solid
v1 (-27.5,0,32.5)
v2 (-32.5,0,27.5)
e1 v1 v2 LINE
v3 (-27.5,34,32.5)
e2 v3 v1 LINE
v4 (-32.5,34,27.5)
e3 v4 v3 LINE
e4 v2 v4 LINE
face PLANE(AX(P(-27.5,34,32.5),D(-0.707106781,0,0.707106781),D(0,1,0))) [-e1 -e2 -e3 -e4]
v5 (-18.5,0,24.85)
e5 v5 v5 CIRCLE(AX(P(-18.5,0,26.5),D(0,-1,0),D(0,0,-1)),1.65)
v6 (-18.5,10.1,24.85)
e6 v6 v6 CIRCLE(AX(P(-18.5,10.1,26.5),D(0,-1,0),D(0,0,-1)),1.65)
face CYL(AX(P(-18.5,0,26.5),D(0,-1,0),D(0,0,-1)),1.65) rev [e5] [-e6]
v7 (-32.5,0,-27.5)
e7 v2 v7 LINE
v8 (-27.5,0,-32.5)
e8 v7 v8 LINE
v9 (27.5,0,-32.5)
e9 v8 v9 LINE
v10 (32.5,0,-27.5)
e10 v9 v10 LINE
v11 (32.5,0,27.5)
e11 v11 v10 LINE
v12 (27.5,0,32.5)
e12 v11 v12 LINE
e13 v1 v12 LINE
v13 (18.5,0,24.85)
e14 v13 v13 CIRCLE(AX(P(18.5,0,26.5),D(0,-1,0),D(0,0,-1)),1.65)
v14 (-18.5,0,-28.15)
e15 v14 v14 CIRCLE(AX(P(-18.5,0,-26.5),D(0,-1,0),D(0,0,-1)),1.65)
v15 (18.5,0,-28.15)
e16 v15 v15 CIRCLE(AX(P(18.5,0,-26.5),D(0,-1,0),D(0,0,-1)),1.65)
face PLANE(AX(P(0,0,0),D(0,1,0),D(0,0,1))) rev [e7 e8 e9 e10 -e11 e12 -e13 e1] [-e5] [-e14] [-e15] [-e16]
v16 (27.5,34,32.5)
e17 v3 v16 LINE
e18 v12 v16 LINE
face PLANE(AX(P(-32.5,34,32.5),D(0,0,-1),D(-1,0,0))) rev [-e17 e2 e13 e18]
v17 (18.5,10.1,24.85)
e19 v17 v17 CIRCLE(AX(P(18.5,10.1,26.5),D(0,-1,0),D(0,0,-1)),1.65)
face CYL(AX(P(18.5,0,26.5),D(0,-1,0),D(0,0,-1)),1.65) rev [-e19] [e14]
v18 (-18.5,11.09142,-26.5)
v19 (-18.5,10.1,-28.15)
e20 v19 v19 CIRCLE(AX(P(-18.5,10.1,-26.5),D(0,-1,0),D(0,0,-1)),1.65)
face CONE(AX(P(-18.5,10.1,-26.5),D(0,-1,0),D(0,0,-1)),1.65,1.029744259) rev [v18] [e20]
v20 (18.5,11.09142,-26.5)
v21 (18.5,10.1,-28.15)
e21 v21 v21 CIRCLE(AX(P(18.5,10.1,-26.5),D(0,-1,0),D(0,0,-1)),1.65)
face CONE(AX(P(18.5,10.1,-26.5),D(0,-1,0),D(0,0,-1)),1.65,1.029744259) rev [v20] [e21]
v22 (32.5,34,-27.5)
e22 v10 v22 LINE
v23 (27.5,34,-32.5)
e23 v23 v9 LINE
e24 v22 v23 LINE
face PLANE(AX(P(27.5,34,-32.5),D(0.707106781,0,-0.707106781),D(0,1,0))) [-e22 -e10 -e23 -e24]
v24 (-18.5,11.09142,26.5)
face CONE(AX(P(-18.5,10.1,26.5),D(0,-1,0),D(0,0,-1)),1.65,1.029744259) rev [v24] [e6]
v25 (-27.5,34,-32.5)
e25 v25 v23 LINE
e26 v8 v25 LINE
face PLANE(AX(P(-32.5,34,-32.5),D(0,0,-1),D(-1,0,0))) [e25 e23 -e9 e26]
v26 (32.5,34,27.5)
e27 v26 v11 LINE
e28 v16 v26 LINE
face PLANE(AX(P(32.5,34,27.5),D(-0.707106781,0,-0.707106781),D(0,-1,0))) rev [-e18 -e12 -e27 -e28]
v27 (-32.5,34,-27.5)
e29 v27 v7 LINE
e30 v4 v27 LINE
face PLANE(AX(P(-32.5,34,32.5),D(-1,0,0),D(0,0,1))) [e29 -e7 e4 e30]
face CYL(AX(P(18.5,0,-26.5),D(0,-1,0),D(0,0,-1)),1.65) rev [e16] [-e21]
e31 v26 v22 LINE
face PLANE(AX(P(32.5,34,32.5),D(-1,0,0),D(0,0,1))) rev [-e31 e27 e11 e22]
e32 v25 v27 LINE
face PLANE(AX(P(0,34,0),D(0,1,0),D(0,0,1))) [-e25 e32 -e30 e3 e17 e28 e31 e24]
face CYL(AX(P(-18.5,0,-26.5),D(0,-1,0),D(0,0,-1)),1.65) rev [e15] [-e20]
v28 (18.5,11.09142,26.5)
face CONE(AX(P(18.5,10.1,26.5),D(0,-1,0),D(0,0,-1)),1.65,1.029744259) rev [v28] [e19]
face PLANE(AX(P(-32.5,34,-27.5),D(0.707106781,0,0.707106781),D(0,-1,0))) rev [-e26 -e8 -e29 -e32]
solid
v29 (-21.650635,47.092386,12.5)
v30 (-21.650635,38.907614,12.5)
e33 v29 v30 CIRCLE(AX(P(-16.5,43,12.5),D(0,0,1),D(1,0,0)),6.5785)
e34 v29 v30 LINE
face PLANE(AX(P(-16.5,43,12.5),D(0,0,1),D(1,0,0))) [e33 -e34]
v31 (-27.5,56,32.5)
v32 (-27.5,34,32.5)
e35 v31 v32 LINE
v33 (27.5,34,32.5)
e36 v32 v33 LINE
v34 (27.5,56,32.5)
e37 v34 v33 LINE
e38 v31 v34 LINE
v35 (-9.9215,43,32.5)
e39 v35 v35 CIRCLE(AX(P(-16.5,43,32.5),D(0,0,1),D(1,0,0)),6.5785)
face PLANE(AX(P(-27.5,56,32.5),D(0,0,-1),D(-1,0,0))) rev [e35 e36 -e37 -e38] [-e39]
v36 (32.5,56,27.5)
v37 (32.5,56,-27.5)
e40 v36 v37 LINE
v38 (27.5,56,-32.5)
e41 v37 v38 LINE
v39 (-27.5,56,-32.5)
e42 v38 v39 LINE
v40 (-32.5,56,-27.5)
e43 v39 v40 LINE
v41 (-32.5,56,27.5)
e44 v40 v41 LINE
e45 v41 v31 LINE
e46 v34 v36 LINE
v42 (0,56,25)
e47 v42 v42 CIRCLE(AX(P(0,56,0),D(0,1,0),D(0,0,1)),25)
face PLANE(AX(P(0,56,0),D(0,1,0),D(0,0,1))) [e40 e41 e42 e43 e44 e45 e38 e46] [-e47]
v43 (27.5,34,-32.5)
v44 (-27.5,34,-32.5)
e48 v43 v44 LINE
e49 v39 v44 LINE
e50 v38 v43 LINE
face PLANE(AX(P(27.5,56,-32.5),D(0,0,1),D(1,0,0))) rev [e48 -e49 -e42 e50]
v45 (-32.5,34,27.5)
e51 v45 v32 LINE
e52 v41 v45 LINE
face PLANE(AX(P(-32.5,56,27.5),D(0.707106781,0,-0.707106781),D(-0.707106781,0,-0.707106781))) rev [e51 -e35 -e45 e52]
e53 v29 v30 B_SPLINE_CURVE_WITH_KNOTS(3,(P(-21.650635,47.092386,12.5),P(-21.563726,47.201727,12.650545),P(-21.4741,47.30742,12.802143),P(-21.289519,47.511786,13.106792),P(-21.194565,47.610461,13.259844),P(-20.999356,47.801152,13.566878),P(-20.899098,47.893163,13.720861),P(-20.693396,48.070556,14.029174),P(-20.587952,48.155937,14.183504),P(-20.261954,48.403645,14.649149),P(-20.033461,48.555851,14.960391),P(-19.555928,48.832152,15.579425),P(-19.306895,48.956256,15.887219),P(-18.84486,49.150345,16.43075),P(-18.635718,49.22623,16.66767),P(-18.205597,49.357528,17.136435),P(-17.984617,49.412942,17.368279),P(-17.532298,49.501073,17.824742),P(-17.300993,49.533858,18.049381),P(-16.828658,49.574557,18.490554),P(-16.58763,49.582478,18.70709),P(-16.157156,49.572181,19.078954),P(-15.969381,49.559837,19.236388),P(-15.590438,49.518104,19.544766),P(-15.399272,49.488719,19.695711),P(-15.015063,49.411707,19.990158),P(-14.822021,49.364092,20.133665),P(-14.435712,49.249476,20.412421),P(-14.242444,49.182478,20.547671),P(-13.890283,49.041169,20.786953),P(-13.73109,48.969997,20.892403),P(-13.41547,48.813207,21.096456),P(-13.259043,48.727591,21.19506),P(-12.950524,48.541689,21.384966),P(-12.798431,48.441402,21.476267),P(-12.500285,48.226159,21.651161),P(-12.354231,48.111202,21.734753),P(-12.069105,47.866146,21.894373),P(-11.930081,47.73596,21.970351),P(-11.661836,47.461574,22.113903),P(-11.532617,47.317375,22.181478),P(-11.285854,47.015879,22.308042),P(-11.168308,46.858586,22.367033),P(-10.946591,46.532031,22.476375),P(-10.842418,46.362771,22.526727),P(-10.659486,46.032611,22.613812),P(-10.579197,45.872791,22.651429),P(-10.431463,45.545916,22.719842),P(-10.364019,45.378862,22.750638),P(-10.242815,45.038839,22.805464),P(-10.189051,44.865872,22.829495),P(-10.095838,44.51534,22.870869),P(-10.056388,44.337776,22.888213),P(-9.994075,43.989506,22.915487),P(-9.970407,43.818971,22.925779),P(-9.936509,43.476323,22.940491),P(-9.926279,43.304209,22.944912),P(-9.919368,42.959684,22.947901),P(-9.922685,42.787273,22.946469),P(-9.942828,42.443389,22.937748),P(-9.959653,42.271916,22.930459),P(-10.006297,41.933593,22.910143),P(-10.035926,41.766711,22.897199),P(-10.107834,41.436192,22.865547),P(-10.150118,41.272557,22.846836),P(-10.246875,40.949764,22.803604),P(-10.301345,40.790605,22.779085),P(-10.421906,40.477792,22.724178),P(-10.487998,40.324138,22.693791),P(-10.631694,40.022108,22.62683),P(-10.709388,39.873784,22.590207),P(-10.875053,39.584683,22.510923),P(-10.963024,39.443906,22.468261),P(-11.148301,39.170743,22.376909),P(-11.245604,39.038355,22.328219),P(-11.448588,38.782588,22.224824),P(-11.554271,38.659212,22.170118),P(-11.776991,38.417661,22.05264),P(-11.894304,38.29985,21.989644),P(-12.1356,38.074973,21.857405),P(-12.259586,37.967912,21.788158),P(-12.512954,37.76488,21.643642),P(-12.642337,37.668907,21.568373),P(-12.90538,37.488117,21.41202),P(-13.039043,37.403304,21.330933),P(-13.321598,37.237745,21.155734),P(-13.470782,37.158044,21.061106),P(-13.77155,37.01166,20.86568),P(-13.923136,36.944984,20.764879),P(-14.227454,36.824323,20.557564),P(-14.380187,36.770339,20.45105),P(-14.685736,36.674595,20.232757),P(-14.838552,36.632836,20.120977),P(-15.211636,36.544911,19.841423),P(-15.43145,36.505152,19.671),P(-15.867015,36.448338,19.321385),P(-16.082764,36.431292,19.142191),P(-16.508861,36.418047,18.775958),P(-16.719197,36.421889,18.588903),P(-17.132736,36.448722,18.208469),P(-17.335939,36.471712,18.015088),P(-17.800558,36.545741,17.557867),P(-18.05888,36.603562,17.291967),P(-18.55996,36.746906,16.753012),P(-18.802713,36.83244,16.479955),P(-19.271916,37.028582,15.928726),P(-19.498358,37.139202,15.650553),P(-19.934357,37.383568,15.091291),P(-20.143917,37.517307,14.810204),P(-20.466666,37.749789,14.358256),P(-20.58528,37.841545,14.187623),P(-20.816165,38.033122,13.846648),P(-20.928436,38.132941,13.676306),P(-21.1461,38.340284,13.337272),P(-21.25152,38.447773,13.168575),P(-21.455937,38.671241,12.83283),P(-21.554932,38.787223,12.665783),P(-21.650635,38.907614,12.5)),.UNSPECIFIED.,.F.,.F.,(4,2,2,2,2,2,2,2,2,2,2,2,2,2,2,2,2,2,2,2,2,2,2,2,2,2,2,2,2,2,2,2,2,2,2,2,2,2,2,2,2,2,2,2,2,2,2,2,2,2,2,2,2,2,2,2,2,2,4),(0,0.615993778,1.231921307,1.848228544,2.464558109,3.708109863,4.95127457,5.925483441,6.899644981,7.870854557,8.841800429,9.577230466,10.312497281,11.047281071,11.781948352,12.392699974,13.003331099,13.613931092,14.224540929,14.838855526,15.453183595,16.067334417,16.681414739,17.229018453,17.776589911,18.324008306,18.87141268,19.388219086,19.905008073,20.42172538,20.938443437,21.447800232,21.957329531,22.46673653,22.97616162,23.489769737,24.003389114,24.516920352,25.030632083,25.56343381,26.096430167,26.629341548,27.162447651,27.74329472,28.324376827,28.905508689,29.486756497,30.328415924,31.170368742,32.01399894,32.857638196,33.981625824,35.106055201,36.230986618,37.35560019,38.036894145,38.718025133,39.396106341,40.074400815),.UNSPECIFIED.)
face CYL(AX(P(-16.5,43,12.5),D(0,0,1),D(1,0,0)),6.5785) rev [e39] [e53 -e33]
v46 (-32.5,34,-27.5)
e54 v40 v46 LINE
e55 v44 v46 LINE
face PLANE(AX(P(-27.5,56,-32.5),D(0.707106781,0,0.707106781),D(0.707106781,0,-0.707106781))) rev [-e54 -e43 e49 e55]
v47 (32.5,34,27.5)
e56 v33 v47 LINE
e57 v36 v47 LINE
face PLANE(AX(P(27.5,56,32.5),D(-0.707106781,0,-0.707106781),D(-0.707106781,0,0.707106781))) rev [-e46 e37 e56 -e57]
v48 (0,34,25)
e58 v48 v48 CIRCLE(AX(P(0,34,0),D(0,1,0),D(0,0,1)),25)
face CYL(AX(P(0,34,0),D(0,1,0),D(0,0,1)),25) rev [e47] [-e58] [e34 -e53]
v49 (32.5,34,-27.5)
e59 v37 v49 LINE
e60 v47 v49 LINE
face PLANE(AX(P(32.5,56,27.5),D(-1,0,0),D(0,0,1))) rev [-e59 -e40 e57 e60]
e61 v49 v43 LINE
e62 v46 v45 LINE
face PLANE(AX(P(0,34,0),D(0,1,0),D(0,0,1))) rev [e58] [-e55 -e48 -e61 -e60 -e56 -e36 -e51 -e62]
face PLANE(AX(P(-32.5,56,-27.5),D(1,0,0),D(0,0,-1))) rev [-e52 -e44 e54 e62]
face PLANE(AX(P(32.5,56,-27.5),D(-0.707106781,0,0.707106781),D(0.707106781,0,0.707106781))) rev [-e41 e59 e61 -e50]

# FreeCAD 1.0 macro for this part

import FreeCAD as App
import Part
import Sketcher

V = App.Vector
Q = App.Units.Quantity


def edges_at(feature, points):
    """Names of the edges that pass closest to the given points."""
    edges = feature.Shape.Edges
    near = lambda p: min(range(len(edges)), key=lambda i: edges[i].distToShape(Part.Vertex(*p))[0])
    return sorted({f"Edge{near(p) + 1}" for p in points})

doc = App.newDocument("Part")
body = doc.addObject("PartDesign::Body", "Body")

sketch1 = doc.addObject("Sketcher::SketchObject", "Sketch")
body.addObject(sketch1)
sketch1.AttachmentSupport = (doc.XZ_Plane, [""])
sketch1.MapMode = "FlatFace"
sketch1.addGeometry([
    Part.LineSegment(V(-32, -32, 0), V(-32, 32, 0)),
    Part.LineSegment(V(-32, 32, 0), V(32, 32, 0)),
    Part.LineSegment(V(32, 32, 0), V(32, -32, 0)),
    Part.LineSegment(V(32, -32, 0), V(-32, -32, 0)),
], False)
sketch1.addConstraint([
    Sketcher.Constraint("Coincident", 0, 2, 1, 1),
    Sketcher.Constraint("Coincident", 1, 2, 2, 1),
    Sketcher.Constraint("Coincident", 2, 2, 3, 1),
    Sketcher.Constraint("Coincident", 3, 2, 0, 1),
    Sketcher.Constraint("Vertical", 0),
    Sketcher.Constraint("Horizontal", 1),
    Sketcher.Constraint("Vertical", 2),
    Sketcher.Constraint("Horizontal", 3),
    Sketcher.Constraint("Symmetric", 0, 2, 2, 2, -1, 1),
    Sketcher.Constraint("Equal", 3, 0),
    Sketcher.Constraint("DistanceX", 1, 1, 1, 2, 65.0),
])
pad1 = doc.addObject("PartDesign::Pad", "Pad")
body.addObject(pad1)
pad1.Profile = sketch1
pad1.Length = 34
pad1.Reversed = True
doc.recompute()

chamfer = doc.addObject("PartDesign::Chamfer", "Chamfer")
body.addObject(chamfer)
chamfer.Base = (pad1, edges_at(pad1, [
    (-32.5, 17, 32.5),
    (-32.5, 17, -32.5),
    (32.5, 17, -32.5),
    (32.5, 17, 32.5),
]))
chamfer.Size = 5

sketch2 = doc.addObject("Sketcher::SketchObject", "Sketch001")
body.addObject(sketch2)
sketch2.AttachmentSupport = (doc.YZ_Plane, [""])
sketch2.MapMode = "FlatFace"
sketch2.AttachmentOffset = App.Placement(V(0, 0, 18.5), App.Rotation())
sketch2.addGeometry([
    Part.LineSegment(V(11.1, -26.5, 0), V(0, -26.5, 0)),
    Part.LineSegment(V(0, -26.5, 0), V(0, -28.1, 0)),
    Part.LineSegment(V(0, -28.1, 0), V(10.1, -28.1, 0)),
    Part.LineSegment(V(10.1, -28.1, 0), V(11.1, -26.5, 0)),
], False)
sketch2.addGeometry(Part.LineSegment(V(0, -26.5, 0), V(11.1, -26.5, 0)), True)
sketch2.addConstraint([
    Sketcher.Constraint("Coincident", 0, 2, 1, 1),
    Sketcher.Constraint("Coincident", 1, 2, 2, 1),
    Sketcher.Constraint("Coincident", 2, 2, 3, 1),
    Sketcher.Constraint("Coincident", 3, 2, 0, 1),
    Sketcher.Constraint("Horizontal", 0),
    Sketcher.Constraint("Vertical", 1),
    Sketcher.Constraint("Horizontal", 2),
    Sketcher.Constraint("Horizontal", 4),
    Sketcher.Constraint("Coincident", 4, 1, 0, 2),
    Sketcher.Constraint("PointOnObject", 0, 2, -2),
    Sketcher.Constraint("Equal", 0, 4),
    Sketcher.Constraint("Angle", 3, Q("59 deg")),
    Sketcher.Constraint("DistanceX", 2, 1, 2, 2, 10.1),
    Sketcher.Constraint("DistanceY", 1, 2, 1, 1, 1.65),
    Sketcher.Constraint("DistanceY", 0, 2, -1, 1, 26.5),
])
groove = doc.addObject("PartDesign::Groove", "Groove")
body.addObject(groove)
groove.Profile = sketch2
groove.ReferenceAxis = (sketch2, ["Axis0"])
groove.Angle = 360
doc.recompute()

linearpattern = doc.addObject("PartDesign::LinearPattern", "LinearPattern")
body.addObject(linearpattern)
linearpattern.Originals = [groove]
linearpattern.Direction = (doc.X_Axis, [""])
linearpattern.Mode = "offset"
linearpattern.Offset = 37
linearpattern.Occurrences = 2
linearpattern.Reversed = True
body.Tip = linearpattern
doc.recompute()

linearpattern2 = doc.addObject("PartDesign::LinearPattern", "LinearPattern001")
body.addObject(linearpattern2)
linearpattern2.Originals = [groove]
linearpattern2.Direction = (doc.Z_Axis, [""])
linearpattern2.Mode = "offset"
linearpattern2.Offset = 53
linearpattern2.Occurrences = 2
body.Tip = linearpattern2
doc.recompute()

datumline = doc.addObject("PartDesign::Line", "DatumLine")
body.addObject(datumline)
datumline.Placement = App.Placement(V(0, 0, 0), App.Rotation(V(0, 0, 1), V(-0.572423568, 0, 0.819958084)))
linearpattern3 = doc.addObject("PartDesign::LinearPattern", "LinearPattern002")
body.addObject(linearpattern3)
linearpattern3.Originals = [groove]
linearpattern3.Direction = (datumline, [""])
linearpattern3.Mode = "offset"
linearpattern3.Offset = 64.63745
linearpattern3.Occurrences = 2
body.Tip = linearpattern3
body2 = doc.addObject("PartDesign::Body", "Body001")

sketch3 = doc.addObject("Sketcher::SketchObject", "Sketch002")
body2.addObject(sketch3)
sketch3.AttachmentSupport = (doc.getObject("XZ_Plane001"), [""])
sketch3.MapMode = "FlatFace"
sketch3.AttachmentOffset = App.Placement(V(0, 0, -34), App.Rotation())
sketch3.addGeometry([
    Part.LineSegment(V(28, -32, 0), V(-28, -32, 0)),
    Part.LineSegment(V(-28, -32, 0), V(-32, -28, 0)),
    Part.LineSegment(V(-32, -28, 0), V(-32, 28, 0)),
    Part.LineSegment(V(-32, 28, 0), V(-28, 32, 0)),
    Part.LineSegment(V(-28, 32, 0), V(28, 32, 0)),
    Part.LineSegment(V(28, 32, 0), V(32, 28, 0)),
    Part.LineSegment(V(32, 28, 0), V(32, -28, 0)),
    Part.LineSegment(V(32, -28, 0), V(28, -32, 0)),
], False)
sketch3.addConstraint([
    Sketcher.Constraint("Coincident", 0, 2, 1, 1),
    Sketcher.Constraint("Coincident", 1, 2, 2, 1),
    Sketcher.Constraint("Coincident", 2, 2, 3, 1),
    Sketcher.Constraint("Coincident", 3, 2, 4, 1),
    Sketcher.Constraint("Coincident", 4, 2, 5, 1),
    Sketcher.Constraint("Coincident", 5, 2, 6, 1),
    Sketcher.Constraint("Coincident", 6, 2, 7, 1),
    Sketcher.Constraint("Coincident", 7, 2, 0, 1),
    Sketcher.Constraint("Horizontal", 0),
    Sketcher.Constraint("Vertical", 2),
    Sketcher.Constraint("Horizontal", 4),
    Sketcher.Constraint("Vertical", 6),
    Sketcher.Constraint("Symmetric", 0, 2, 4, 2, -1, 1),
    Sketcher.Constraint("Symmetric", 1, 2, 5, 2, -1, 1),
    Sketcher.Constraint("Perpendicular", 1, 3),
    Sketcher.Constraint("Perpendicular", 5, 7),
    Sketcher.Constraint("Horizontal", 2, 2, 5, 2),
    Sketcher.Constraint("Horizontal", 1, 2, 6, 2),
    Sketcher.Constraint("Vertical", 0, 2, 3, 2),
    Sketcher.Constraint("Equal", 4, 2),
    Sketcher.Constraint("DistanceX", 0, 2, 0, 1, 55.0),
    Sketcher.Constraint("DistanceX", 1, 2, 0, 2, 5.0),
])
pad2 = doc.addObject("PartDesign::Pad", "Pad001")
body2.addObject(pad2)
pad2.Profile = sketch3
pad2.Length = 22
pad2.Reversed = True

sketch4 = doc.addObject("Sketcher::SketchObject", "Sketch003")
body2.addObject(sketch4)
sketch4.AttachmentSupport = (doc.getObject("XY_Plane001"), [""])
sketch4.MapMode = "FlatFace"
sketch4.AttachmentOffset = App.Placement(V(0, 0, 32.5), App.Rotation())
sketch4.addGeometry(Part.Circle(V(-16, 43, 0), V(0, 0, 1), 7), False)
sketch4.addConstraint([
    Sketcher.Constraint("Diameter", 0, 13.157),
    Sketcher.Constraint("DistanceY", -1, 1, 0, 3, 43.0),
    Sketcher.Constraint("DistanceX", 0, 3, -1, 1, 16.5),
])
pocket1 = doc.addObject("PartDesign::Pocket", "Pocket")
body2.addObject(pocket1)
pocket1.Profile = sketch4
pocket1.Length = 20

sketch5 = doc.addObject("Sketcher::SketchObject", "Sketch004")
body2.addObject(sketch5)
sketch5.AttachmentSupport = (doc.getObject("XZ_Plane001"), [""])
sketch5.MapMode = "FlatFace"
sketch5.AttachmentOffset = App.Placement(V(0, 0, -56), App.Rotation())
sketch5.addGeometry(Part.Circle(V(0, 0, 0), V(0, 0, 1), 25), False)
sketch5.addConstraint([
    Sketcher.Constraint("Coincident", 0, 3, -1, 1),
    Sketcher.Constraint("Diameter", 0, 50.0),
])
pocket2 = doc.addObject("PartDesign::Pocket", "Pocket001")
body2.addObject(pocket2)
pocket2.Profile = sketch5
pocket2.Length = 22
pocket2.Reversed = True

doc.recompute()
